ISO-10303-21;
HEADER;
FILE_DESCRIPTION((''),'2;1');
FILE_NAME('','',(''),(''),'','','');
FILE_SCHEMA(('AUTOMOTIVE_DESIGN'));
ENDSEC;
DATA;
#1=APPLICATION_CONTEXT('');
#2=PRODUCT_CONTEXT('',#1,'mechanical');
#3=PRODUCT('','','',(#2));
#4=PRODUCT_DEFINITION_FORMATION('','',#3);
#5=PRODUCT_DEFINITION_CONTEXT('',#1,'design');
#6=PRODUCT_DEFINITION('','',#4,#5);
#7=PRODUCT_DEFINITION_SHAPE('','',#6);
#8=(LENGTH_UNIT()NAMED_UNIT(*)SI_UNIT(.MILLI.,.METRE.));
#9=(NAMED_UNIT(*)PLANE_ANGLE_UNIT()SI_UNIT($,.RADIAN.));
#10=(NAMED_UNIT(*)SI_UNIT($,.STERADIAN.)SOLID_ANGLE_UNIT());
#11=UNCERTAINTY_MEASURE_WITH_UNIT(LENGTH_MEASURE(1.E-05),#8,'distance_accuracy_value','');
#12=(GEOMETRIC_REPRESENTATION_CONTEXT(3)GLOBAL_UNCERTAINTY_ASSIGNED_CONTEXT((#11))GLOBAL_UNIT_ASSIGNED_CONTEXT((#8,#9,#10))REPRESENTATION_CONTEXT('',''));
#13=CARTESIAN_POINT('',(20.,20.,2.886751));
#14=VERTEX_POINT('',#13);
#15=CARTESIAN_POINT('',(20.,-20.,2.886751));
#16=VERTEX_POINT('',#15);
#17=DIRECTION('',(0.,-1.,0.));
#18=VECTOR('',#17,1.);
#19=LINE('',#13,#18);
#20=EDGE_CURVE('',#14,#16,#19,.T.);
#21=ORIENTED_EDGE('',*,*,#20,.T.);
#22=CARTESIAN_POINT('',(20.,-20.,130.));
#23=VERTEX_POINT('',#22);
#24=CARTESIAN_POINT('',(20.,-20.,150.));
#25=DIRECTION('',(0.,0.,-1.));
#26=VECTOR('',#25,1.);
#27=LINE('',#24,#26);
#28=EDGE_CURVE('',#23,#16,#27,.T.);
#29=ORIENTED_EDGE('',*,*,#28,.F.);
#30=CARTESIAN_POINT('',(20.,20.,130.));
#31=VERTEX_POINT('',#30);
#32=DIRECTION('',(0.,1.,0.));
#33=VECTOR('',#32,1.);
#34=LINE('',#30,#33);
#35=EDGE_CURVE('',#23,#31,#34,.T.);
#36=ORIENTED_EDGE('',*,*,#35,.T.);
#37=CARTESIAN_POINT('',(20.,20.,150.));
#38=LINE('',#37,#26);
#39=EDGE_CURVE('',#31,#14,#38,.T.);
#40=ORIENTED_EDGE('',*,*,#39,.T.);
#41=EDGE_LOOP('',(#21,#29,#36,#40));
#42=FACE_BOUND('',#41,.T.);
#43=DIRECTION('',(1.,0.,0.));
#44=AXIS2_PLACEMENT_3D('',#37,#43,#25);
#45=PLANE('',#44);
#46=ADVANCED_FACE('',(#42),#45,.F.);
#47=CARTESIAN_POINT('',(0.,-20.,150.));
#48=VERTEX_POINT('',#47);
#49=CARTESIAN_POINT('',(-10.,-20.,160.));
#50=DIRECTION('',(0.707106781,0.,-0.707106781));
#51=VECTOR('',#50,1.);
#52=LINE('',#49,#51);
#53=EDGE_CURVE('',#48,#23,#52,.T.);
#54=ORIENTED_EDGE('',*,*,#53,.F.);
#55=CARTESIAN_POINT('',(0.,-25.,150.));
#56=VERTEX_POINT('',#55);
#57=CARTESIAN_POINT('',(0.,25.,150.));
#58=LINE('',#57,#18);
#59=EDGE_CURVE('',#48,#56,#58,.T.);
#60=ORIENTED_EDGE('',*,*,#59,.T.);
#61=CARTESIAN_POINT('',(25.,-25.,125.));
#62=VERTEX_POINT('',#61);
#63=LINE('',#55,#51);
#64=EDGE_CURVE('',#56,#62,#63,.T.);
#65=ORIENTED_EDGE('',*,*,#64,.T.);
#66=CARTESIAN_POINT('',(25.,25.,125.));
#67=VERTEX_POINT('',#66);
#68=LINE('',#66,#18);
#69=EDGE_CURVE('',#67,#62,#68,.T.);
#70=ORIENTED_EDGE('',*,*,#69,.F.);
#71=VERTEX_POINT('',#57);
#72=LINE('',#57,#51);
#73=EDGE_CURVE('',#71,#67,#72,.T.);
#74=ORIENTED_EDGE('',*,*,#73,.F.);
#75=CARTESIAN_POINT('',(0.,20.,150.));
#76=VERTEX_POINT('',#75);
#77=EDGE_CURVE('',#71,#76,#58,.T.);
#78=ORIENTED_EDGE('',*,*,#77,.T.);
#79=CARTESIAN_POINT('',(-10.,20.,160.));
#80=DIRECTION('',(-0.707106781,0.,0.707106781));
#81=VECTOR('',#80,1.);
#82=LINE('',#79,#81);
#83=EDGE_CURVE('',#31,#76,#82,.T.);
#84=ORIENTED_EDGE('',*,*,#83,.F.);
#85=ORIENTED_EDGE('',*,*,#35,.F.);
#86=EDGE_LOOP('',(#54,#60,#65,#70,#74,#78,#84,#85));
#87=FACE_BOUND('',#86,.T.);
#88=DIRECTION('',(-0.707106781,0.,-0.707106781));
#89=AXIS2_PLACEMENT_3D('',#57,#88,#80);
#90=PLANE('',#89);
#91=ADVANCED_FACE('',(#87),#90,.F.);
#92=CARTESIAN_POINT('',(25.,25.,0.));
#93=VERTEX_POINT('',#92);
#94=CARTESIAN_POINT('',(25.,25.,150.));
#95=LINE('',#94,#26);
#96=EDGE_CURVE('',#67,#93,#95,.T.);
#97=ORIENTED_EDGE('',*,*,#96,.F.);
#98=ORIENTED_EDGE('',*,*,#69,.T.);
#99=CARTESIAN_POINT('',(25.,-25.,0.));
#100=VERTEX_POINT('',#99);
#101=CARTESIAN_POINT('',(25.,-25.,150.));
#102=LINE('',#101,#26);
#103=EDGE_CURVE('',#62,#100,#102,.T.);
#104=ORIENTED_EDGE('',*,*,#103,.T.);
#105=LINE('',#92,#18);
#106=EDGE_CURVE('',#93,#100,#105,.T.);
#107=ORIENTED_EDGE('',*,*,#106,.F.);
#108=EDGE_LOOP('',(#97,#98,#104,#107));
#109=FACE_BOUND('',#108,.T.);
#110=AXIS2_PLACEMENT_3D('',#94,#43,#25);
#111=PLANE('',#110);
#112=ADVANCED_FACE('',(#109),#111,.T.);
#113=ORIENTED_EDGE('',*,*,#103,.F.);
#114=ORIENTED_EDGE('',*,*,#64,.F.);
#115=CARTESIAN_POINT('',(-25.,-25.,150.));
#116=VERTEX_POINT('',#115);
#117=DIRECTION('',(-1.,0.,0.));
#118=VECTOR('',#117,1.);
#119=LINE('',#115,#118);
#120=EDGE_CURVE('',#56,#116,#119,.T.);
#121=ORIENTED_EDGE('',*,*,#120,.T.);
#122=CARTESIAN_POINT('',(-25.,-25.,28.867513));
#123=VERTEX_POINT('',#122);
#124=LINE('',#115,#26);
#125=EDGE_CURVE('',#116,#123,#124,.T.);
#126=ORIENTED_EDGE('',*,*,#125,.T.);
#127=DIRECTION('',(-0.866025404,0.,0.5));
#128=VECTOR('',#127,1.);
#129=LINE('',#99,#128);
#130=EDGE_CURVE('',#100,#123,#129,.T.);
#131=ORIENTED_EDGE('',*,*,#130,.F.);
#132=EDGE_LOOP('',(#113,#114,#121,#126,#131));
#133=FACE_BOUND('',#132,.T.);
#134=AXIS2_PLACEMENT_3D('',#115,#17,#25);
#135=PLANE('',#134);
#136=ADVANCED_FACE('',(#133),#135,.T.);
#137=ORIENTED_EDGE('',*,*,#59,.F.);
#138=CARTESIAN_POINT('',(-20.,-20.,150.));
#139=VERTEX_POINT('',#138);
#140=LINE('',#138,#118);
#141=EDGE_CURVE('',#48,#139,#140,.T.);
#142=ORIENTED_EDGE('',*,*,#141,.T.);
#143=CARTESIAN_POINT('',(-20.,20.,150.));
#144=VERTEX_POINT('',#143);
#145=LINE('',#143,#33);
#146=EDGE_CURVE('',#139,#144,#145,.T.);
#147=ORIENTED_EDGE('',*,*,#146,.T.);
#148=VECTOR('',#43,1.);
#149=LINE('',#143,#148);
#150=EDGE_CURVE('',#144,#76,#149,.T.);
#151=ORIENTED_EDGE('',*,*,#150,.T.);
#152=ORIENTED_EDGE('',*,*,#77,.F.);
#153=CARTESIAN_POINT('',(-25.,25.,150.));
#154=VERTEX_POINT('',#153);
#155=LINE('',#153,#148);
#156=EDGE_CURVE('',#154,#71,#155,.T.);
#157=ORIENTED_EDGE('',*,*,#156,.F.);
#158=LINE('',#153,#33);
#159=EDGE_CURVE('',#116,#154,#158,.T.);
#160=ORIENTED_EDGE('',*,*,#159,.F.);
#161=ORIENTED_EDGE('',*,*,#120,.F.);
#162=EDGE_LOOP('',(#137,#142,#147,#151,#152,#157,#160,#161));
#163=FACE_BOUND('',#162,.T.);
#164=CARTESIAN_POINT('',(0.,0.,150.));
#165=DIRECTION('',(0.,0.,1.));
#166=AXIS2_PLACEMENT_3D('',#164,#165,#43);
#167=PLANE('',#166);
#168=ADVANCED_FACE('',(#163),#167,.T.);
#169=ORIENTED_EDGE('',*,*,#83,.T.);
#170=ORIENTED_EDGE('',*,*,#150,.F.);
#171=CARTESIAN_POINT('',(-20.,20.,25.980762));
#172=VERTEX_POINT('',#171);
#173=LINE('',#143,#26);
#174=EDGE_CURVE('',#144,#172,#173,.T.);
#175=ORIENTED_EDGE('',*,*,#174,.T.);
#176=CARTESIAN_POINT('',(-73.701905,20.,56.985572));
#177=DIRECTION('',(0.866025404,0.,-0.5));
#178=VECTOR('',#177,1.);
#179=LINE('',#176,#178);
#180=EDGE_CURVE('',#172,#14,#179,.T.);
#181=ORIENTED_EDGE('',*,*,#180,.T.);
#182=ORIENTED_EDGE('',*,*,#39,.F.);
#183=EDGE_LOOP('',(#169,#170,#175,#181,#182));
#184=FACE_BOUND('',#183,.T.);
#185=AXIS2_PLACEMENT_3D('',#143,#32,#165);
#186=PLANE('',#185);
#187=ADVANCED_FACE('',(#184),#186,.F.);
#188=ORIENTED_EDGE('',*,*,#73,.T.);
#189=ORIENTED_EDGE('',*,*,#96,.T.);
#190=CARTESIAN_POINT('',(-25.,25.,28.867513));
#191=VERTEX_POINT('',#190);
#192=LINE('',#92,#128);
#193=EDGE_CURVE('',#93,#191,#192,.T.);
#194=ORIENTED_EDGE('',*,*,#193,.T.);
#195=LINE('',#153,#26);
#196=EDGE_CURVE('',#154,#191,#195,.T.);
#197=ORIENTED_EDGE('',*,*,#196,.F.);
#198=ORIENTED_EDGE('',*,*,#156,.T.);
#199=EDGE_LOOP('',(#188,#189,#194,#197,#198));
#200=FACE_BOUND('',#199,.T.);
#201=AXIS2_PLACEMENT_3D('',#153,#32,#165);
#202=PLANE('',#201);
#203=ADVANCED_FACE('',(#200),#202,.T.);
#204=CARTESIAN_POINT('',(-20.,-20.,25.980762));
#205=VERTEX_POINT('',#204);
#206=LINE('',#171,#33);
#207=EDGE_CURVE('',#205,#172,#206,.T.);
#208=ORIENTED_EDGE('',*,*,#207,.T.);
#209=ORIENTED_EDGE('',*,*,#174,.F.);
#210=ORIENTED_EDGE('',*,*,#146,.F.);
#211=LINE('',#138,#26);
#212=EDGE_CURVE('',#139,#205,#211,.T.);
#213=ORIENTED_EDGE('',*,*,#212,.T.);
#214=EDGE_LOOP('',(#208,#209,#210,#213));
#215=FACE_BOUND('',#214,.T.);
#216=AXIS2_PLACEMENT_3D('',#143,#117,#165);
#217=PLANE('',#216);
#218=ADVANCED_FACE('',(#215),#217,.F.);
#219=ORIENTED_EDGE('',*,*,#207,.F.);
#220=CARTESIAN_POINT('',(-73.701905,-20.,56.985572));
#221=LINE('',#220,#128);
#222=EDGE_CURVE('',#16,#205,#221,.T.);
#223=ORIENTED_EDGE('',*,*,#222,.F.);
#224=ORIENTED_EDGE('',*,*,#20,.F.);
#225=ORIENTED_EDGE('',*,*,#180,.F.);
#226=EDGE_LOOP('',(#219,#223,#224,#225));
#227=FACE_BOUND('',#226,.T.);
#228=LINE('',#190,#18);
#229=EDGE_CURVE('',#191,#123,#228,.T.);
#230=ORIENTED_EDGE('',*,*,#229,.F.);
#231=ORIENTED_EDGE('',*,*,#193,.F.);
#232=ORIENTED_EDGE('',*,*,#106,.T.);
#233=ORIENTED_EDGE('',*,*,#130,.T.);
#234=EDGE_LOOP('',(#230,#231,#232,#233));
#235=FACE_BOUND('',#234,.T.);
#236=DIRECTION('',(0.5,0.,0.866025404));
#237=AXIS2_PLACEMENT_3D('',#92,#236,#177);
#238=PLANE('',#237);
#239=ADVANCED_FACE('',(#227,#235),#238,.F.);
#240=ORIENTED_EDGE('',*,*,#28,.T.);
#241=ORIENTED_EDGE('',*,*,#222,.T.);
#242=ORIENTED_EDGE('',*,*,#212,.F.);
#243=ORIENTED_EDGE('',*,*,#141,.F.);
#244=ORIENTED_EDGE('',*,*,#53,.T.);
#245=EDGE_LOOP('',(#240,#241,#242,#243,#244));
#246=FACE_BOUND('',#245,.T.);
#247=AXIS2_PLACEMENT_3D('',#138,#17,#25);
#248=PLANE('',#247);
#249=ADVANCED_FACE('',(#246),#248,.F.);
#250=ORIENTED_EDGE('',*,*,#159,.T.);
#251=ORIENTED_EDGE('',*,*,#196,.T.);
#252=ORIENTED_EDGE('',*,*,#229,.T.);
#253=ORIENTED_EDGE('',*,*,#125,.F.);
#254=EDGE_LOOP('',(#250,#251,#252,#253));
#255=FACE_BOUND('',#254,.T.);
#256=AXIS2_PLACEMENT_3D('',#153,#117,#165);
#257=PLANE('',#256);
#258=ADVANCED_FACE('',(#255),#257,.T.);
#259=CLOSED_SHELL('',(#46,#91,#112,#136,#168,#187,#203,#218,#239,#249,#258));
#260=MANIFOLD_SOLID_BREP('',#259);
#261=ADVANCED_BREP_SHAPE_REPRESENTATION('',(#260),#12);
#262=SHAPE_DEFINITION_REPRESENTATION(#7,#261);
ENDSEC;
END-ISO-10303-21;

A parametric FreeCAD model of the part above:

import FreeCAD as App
import Part
import Sketcher

V = App.Vector
Q = App.Units.Quantity


def add_polygon(sketch, points):
    """Adds a closed chain of lines whose ends are joined by coincident constraints."""
    first, n = sketch.GeometryCount, len(points)
    for a, b in zip(points, points[1:] + points[:1]):
        sketch.addGeometry(Part.LineSegment(App.Vector(*a, 0), App.Vector(*b, 0)), False)
    for i in range(n):
        sketch.addConstraint(Sketcher.Constraint("Coincident", first + i, 2, first + (i + 1) % n, 1))

doc = App.newDocument("Part")
body = doc.addObject("PartDesign::Body", "Body")

# Sketch on XY plane
sketch1 = doc.addObject("Sketcher::SketchObject", "Sketch")
body.addObject(sketch1)
sketch1.AttachmentSupport = (doc.XY_Plane, [""])
sketch1.MapMode = "FlatFace"
add_polygon(sketch1, [(-25, -25), (-25, 25), (25, 25), (25, -25)])  # lines 0-3
add_polygon(sketch1, [(20, 20), (-20, 20), (-20, -20), (20, -20)])  # lines 4-7
sketch1.addConstraint(Sketcher.Constraint("Vertical", 0))
sketch1.addConstraint(Sketcher.Constraint("Horizontal", 1))
sketch1.addConstraint(Sketcher.Constraint("Vertical", 2))
sketch1.addConstraint(Sketcher.Constraint("Horizontal", 3))
sketch1.addConstraint(Sketcher.Constraint("Horizontal", 4))
sketch1.addConstraint(Sketcher.Constraint("Vertical", 5))
sketch1.addConstraint(Sketcher.Constraint("Horizontal", 6))
sketch1.addConstraint(Sketcher.Constraint("Vertical", 7))
sketch1.addConstraint(Sketcher.Constraint("Symmetric", 0, 2, 2, 2, -1, 1))
sketch1.addConstraint(Sketcher.Constraint("Symmetric", 4, 2, 6, 2, -1, 1))
sketch1.addConstraint(Sketcher.Constraint("Equal", 3, 0))
sketch1.addConstraint(Sketcher.Constraint("Equal", 6, 5))
sketch1.addConstraint(Sketcher.Constraint("DistanceX", 1, 1, 1, 2, 50.0))
sketch1.addConstraint(Sketcher.Constraint("DistanceX", 4, 2, 4, 1, 40.0))
pad1 = doc.addObject("PartDesign::Pad", "Pad")
body.addObject(pad1)
pad1.Profile = sketch1
pad1.Length = 150

# Sketch on XZ plane
sketch2 = doc.addObject("Sketcher::SketchObject", "Sketch001")
body.addObject(sketch2)
sketch2.AttachmentSupport = (doc.XZ_Plane, [""])
sketch2.MapMode = "FlatFace"
sketch2.AttachmentOffset = App.Placement(V(0, 0, 25), App.Rotation())
add_polygon(sketch2, [(0, 150), (25, 125), (25, 150)])  # lines 0-2
sketch2.addConstraint(Sketcher.Constraint("Vertical", 1))
sketch2.addConstraint(Sketcher.Constraint("Horizontal", 2))
sketch2.addConstraint(Sketcher.Constraint("PointOnObject", 2, 2, -2))
sketch2.addConstraint(Sketcher.Constraint("Equal", 2, 1))
sketch2.addConstraint(Sketcher.Constraint("DistanceX", 2, 2, 2, 1, 25.0))
sketch2.addConstraint(Sketcher.Constraint("DistanceY", -1, 1, 0, 2, 125.0))
pocket1 = doc.addObject("PartDesign::Pocket", "Pocket")
body.addObject(pocket1)
pocket1.Profile = sketch2
pocket1.Type = "ThroughAll"

# Sketch on XZ plane
sketch3 = doc.addObject("Sketcher::SketchObject", "Sketch002")
body.addObject(sketch3)
sketch3.AttachmentSupport = (doc.XZ_Plane, [""])
sketch3.MapMode = "FlatFace"
sketch3.AttachmentOffset = App.Placement(V(0, 0, 25), App.Rotation())
add_polygon(sketch3, [(25, 0), (-25, 29), (-25, 0)])  # lines 0-2
sketch3.addConstraint(Sketcher.Constraint("Vertical", 1))
sketch3.addConstraint(Sketcher.Constraint("Horizontal", 2))
sketch3.addConstraint(Sketcher.Constraint("Symmetric", 1, 2, 2, 2, -1, 1))
sketch3.addConstraint(Sketcher.Constraint("DistanceX", 2, 1, 2, 2, 50.0))
sketch3.addConstraint(Sketcher.Constraint("Angle", 0, Q("150 deg")))
pocket2 = doc.addObject("PartDesign::Pocket", "Pocket001")
body.addObject(pocket2)
pocket2.Profile = sketch3
pocket2.Type = "ThroughAll"

doc.recompute()
